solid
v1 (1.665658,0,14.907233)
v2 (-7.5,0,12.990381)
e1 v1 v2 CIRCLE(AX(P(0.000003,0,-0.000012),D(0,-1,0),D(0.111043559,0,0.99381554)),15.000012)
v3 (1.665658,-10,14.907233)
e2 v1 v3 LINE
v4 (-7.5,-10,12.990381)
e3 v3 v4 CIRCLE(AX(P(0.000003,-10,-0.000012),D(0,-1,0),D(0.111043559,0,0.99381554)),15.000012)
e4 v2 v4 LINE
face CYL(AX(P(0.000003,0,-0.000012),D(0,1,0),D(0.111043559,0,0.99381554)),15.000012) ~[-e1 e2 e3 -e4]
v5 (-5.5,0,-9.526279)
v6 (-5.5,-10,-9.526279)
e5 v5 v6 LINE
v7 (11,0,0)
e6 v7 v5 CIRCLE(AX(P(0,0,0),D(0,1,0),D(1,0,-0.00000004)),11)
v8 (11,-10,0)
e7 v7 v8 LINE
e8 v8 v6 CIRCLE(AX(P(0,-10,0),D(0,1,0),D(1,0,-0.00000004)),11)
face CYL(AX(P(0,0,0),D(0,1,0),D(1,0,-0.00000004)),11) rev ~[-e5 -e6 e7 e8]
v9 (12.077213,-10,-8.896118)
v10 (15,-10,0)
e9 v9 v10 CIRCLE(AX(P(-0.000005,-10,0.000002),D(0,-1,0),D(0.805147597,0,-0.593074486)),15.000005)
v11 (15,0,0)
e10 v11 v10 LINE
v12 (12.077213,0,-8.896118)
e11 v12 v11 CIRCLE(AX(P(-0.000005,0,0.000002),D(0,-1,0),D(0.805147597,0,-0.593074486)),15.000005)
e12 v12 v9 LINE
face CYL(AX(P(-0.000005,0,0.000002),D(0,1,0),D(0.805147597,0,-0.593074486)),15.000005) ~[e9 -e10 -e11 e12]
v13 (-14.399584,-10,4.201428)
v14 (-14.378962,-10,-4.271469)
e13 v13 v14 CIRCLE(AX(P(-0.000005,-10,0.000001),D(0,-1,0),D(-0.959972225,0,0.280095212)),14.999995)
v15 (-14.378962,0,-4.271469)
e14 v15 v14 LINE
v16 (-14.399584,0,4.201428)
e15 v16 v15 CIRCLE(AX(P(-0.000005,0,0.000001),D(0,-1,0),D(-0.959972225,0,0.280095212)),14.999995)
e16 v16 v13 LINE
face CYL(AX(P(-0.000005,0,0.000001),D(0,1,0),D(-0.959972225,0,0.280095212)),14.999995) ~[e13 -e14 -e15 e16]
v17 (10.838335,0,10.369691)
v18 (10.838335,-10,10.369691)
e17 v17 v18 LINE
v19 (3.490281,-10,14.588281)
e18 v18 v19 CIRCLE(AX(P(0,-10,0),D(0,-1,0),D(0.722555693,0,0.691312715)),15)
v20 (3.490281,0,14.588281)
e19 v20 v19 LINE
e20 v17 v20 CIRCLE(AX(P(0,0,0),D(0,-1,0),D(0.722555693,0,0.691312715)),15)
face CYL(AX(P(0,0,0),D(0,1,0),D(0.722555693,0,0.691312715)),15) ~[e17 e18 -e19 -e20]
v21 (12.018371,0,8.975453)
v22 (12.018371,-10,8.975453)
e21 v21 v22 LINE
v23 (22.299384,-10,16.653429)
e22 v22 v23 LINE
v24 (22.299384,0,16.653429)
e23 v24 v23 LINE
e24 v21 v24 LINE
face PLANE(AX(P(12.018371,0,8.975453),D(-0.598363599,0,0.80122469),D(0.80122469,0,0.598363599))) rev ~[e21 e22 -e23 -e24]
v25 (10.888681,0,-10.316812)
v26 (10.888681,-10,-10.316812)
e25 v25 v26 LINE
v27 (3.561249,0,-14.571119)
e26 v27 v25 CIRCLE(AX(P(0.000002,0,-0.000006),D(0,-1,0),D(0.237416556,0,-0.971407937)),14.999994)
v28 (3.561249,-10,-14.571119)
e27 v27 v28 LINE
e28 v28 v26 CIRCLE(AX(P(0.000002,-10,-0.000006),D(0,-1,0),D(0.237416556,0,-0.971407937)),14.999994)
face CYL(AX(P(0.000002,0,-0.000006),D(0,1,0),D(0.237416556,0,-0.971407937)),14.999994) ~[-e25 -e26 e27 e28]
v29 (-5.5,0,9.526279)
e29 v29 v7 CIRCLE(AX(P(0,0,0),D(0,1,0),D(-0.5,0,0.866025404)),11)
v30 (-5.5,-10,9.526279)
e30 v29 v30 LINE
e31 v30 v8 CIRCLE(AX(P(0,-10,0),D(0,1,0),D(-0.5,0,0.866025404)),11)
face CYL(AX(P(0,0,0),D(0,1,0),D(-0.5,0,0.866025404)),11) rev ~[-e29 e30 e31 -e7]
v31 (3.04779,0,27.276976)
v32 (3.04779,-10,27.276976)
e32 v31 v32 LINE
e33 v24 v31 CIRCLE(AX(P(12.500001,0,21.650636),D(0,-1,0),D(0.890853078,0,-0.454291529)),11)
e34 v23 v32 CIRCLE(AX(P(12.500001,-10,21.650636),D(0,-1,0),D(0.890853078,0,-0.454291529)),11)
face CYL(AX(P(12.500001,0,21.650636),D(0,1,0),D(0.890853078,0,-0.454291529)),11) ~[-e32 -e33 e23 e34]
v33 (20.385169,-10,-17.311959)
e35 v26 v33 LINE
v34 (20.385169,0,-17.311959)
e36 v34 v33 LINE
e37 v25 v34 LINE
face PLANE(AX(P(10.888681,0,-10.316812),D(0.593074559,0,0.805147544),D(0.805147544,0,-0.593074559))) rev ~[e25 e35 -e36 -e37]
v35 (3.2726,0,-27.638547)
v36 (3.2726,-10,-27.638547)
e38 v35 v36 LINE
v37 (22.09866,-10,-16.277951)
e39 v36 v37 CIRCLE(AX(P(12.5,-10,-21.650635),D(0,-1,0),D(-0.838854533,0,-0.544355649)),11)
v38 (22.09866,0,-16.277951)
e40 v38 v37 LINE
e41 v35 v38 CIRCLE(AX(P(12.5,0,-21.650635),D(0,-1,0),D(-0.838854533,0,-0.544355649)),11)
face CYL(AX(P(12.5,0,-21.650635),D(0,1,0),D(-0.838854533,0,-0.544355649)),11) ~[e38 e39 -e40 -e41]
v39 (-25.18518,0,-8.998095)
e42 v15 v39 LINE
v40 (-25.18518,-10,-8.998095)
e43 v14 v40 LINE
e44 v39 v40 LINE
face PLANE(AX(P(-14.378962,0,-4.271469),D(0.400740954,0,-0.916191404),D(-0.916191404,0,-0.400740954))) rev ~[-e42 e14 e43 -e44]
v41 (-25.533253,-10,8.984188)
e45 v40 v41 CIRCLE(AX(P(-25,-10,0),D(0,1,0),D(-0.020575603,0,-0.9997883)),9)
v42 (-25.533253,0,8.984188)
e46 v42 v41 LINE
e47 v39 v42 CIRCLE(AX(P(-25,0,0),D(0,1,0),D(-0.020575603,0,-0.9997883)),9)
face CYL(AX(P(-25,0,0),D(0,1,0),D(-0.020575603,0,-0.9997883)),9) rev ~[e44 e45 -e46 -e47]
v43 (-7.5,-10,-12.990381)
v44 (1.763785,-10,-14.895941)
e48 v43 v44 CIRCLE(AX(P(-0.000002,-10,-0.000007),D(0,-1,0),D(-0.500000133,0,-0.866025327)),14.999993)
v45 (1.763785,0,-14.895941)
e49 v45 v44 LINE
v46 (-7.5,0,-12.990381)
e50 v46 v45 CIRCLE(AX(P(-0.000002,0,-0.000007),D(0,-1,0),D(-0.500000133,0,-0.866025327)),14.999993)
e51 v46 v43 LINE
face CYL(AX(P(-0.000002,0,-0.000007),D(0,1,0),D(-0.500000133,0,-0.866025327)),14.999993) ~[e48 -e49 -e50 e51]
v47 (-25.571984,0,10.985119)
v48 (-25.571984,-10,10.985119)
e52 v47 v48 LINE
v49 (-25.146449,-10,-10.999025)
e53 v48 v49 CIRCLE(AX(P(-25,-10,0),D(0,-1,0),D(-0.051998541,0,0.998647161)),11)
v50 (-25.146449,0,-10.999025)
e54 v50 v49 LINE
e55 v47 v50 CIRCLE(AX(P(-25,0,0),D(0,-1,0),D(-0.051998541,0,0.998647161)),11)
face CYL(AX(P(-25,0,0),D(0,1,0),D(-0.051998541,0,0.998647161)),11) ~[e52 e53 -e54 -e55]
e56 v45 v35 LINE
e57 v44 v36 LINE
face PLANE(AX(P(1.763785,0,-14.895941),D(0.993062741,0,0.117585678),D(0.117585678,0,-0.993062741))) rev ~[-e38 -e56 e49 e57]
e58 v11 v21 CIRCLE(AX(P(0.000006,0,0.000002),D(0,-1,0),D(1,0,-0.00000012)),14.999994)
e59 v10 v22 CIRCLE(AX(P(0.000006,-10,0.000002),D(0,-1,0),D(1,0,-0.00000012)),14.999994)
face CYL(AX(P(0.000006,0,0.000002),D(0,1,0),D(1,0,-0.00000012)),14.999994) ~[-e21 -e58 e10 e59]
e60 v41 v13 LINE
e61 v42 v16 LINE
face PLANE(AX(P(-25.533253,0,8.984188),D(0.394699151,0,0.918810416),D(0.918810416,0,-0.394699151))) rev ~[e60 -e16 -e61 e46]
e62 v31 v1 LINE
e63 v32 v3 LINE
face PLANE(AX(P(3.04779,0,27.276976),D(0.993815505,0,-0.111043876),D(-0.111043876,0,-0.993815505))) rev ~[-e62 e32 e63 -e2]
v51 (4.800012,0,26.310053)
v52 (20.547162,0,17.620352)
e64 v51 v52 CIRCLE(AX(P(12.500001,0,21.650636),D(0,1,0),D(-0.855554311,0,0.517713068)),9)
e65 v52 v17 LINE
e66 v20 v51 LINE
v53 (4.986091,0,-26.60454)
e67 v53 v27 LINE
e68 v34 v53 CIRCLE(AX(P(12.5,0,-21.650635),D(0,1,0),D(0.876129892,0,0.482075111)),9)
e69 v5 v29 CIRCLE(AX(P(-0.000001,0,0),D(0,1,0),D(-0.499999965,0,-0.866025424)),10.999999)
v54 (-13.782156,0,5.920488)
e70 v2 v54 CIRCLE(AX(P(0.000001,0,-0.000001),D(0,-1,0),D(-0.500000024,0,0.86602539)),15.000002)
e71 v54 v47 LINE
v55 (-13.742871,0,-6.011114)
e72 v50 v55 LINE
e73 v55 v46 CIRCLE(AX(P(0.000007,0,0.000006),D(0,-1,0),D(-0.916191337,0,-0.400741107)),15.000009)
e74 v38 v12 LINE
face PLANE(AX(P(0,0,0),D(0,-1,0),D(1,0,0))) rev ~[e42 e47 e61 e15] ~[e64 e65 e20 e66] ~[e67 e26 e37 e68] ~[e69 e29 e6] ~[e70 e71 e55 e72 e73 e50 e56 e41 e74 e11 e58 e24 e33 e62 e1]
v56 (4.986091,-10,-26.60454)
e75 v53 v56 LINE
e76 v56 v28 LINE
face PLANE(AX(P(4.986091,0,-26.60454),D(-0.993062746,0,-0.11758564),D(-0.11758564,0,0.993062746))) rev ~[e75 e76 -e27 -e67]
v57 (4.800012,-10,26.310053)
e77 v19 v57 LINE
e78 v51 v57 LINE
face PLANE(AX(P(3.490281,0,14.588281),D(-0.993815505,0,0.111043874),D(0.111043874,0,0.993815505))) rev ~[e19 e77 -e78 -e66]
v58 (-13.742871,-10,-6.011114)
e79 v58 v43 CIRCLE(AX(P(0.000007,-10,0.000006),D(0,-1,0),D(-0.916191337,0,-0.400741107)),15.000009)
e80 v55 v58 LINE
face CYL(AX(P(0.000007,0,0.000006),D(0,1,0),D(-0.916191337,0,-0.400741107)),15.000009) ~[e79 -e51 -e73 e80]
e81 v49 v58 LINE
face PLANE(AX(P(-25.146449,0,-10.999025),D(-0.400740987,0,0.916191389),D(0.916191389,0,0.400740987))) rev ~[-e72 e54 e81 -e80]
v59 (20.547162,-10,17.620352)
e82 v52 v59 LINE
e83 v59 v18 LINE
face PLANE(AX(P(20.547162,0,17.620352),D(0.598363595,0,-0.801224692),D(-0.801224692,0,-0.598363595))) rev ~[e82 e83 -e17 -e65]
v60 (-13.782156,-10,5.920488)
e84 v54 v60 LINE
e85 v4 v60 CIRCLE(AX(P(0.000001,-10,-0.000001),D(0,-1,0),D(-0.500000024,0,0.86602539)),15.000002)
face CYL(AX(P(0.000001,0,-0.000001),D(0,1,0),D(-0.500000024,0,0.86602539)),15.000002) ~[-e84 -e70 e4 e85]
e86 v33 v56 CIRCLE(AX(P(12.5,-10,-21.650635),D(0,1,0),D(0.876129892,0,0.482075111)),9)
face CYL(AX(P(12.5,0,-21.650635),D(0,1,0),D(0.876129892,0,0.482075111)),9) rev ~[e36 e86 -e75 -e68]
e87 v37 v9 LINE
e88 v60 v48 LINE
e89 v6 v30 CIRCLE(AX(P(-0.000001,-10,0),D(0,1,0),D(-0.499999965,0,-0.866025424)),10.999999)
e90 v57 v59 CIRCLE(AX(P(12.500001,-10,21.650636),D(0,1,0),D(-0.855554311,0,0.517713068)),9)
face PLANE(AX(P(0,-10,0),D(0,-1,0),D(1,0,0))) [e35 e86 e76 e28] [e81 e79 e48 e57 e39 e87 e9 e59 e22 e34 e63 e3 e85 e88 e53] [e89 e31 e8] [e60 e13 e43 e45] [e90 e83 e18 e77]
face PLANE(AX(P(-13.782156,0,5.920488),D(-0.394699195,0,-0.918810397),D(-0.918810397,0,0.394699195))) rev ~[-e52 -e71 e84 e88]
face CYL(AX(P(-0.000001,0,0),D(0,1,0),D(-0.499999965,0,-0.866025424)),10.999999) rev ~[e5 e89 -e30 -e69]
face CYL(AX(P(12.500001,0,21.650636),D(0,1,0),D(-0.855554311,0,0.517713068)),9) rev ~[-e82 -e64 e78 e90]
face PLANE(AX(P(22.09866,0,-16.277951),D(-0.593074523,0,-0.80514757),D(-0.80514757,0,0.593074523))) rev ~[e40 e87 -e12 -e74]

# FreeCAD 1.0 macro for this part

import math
import FreeCAD as App
import Part
import Sketcher

doc = App.newDocument("Part")
body = doc.addObject("PartDesign::Body", "Body")

sketch1 = doc.addObject("Sketcher::SketchObject", "Sketch")
body.addObject(sketch1)
sketch1.AttachmentSupport = (doc.XZ_Plane, [""])
sketch1.MapMode = "FlatFace"
sketch1.addGeometry(Part.LineSegment(App.Vector(-14, 6, 0), App.Vector(-26, 11, 0)), False)
sketch1.addGeometry(Part.ArcOfCircle(Part.Circle(App.Vector(-25, 0, 0), App.Vector(0, 0, 1), 11), math.radians(93), math.radians(269)), False)
sketch1.addGeometry(Part.LineSegment(App.Vector(-25, -11, 0), App.Vector(-14, -6, 0)), False)
sketch1.addGeometry(Part.ArcOfCircle(Part.Circle(App.Vector(0, 0, 0), App.Vector(0, 0, 1), 15), math.radians(-156), math.radians(-120)), False)
sketch1.addGeometry(Part.ArcOfCircle(Part.Circle(App.Vector(0, 0, 0), App.Vector(0, 0, 1), 15), math.radians(-120), math.radians(-83)), False)
sketch1.addGeometry(Part.LineSegment(App.Vector(2, -15, 0), App.Vector(3, -28, 0)), False)
sketch1.addGeometry(Part.ArcOfCircle(Part.Circle(App.Vector(13, -22, 0), App.Vector(0, 0, 1), 11), math.radians(-147), math.radians(29)), False)
sketch1.addGeometry(Part.LineSegment(App.Vector(22, -16, 0), App.Vector(12, -9, 0)), False)
sketch1.addGeometry(Part.ArcOfCircle(Part.Circle(App.Vector(0, 0, 0), App.Vector(0, 0, 1), 15), math.radians(-36), math.radians(0)), False)
sketch1.addGeometry(Part.ArcOfCircle(Part.Circle(App.Vector(0, 0, 0), App.Vector(0, 0, 1), 15), math.radians(0), math.radians(37)), False)
sketch1.addGeometry(Part.LineSegment(App.Vector(12, 9, 0), App.Vector(22, 17, 0)), False)
sketch1.addGeometry(Part.ArcOfCircle(Part.Circle(App.Vector(13, 22, 0), App.Vector(0, 0, 1), 11), math.radians(-27), math.radians(149)), False)
sketch1.addGeometry(Part.LineSegment(App.Vector(3, 27, 0), App.Vector(2, 15, 0)), False)
sketch1.addGeometry(Part.ArcOfCircle(Part.Circle(App.Vector(0, 0, 0), App.Vector(0, 0, 1), 15), math.radians(84), math.radians(120)), False)
sketch1.addGeometry(Part.ArcOfCircle(Part.Circle(App.Vector(0, 0, 0), App.Vector(0, 0, 1), 15), math.radians(120), math.radians(157)), False)
sketch1.addGeometry(Part.ArcOfCircle(Part.Circle(App.Vector(-25, 0, 0), App.Vector(0, 0, 1), 9), math.radians(93), math.radians(269)), False)
sketch1.addGeometry(Part.LineSegment(App.Vector(-26, 9, 0), App.Vector(-14, 4, 0)), False)
sketch1.addGeometry(Part.ArcOfCircle(Part.Circle(App.Vector(0, 0, 0), App.Vector(0, 0, 1), 15), math.radians(164), math.radians(197)), False)
sketch1.addGeometry(Part.LineSegment(App.Vector(-14, -4, 0), App.Vector(-25, -9, 0)), False)
sketch1.addGeometry(Part.ArcOfCircle(Part.Circle(App.Vector(0, 0, 0), App.Vector(0, 0, 1), 15), math.radians(-76), math.radians(-43)), False)
sketch1.addGeometry(Part.LineSegment(App.Vector(11, -10, 0), App.Vector(20, -17, 0)), False)
sketch1.addGeometry(Part.ArcOfCircle(Part.Circle(App.Vector(12, -22, 0), App.Vector(0, 0, 1), 9), math.radians(-147), math.radians(29)), False)
sketch1.addGeometry(Part.LineSegment(App.Vector(5, -27, 0), App.Vector(4, -15, 0)), False)
sketch1.addGeometry(Part.ArcOfCircle(Part.Circle(App.Vector(0, 0, 0), App.Vector(0, 0, 1), 11), math.radians(-120), math.radians(0)), False)
sketch1.addGeometry(Part.ArcOfCircle(Part.Circle(App.Vector(0, 0, 0), App.Vector(0, 0, 1), 11), math.radians(120), math.radians(240)), False)
sketch1.addGeometry(Part.ArcOfCircle(Part.Circle(App.Vector(0, 0, 0), App.Vector(0, 0, 1), 11), math.radians(0), math.radians(120)), False)
sketch1.addGeometry(Part.ArcOfCircle(Part.Circle(App.Vector(0, 0, 0), App.Vector(0, 0, 1), 15), math.radians(44), math.radians(77)), False)
sketch1.addGeometry(Part.LineSegment(App.Vector(3, 15, 0), App.Vector(5, 26, 0)), False)
sketch1.addGeometry(Part.ArcOfCircle(Part.Circle(App.Vector(13, 22, 0), App.Vector(0, 0, 1), 9), math.radians(-27), math.radians(149)), False)
sketch1.addGeometry(Part.LineSegment(App.Vector(21, 18, 0), App.Vector(11, 10, 0)), False)
sketch1.addConstraint(Sketcher.Constraint("Coincident", 0, 2, 1, 1))
sketch1.addConstraint(Sketcher.Constraint("Coincident", 1, 2, 2, 1))
sketch1.addConstraint(Sketcher.Constraint("Coincident", 2, 2, 3, 1))
sketch1.addConstraint(Sketcher.Constraint("Tangent", 3, 2, 4, 1))
sketch1.addConstraint(Sketcher.Constraint("Coincident", 4, 2, 5, 1))
sketch1.addConstraint(Sketcher.Constraint("Coincident", 5, 2, 6, 1))
sketch1.addConstraint(Sketcher.Constraint("Coincident", 6, 2, 7, 1))
sketch1.addConstraint(Sketcher.Constraint("Coincident", 7, 2, 8, 1))
sketch1.addConstraint(Sketcher.Constraint("Tangent", 8, 2, 9, 1))
sketch1.addConstraint(Sketcher.Constraint("Coincident", 9, 2, 10, 1))
sketch1.addConstraint(Sketcher.Constraint("Coincident", 10, 2, 11, 1))
sketch1.addConstraint(Sketcher.Constraint("Coincident", 11, 2, 12, 1))
sketch1.addConstraint(Sketcher.Constraint("Coincident", 12, 2, 13, 1))
sketch1.addConstraint(Sketcher.Constraint("Tangent", 13, 2, 14, 1))
sketch1.addConstraint(Sketcher.Constraint("Coincident", 14, 2, 0, 1))
sketch1.addConstraint(Sketcher.Constraint("Coincident", 15, 1, 16, 1))
sketch1.addConstraint(Sketcher.Constraint("Coincident", 16, 2, 17, 1))
sketch1.addConstraint(Sketcher.Constraint("Coincident", 17, 2, 18, 1))
sketch1.addConstraint(Sketcher.Constraint("Coincident", 18, 2, 15, 2))
sketch1.addConstraint(Sketcher.Constraint("Coincident", 19, 2, 20, 1))
sketch1.addConstraint(Sketcher.Constraint("Coincident", 20, 2, 21, 2))
sketch1.addConstraint(Sketcher.Constraint("Coincident", 21, 1, 22, 1))
sketch1.addConstraint(Sketcher.Constraint("Coincident", 22, 2, 19, 1))
sketch1.addConstraint(Sketcher.Constraint("Tangent", 23, 1, 24, 2))
sketch1.addConstraint(Sketcher.Constraint("Tangent", 24, 1, 25, 2))
sketch1.addConstraint(Sketcher.Constraint("Tangent", 25, 1, 23, 2))
sketch1.addConstraint(Sketcher.Constraint("Coincident", 26, 2, 27, 1))
sketch1.addConstraint(Sketcher.Constraint("Coincident", 27, 2, 28, 2))
sketch1.addConstraint(Sketcher.Constraint("Coincident", 28, 1, 29, 1))
sketch1.addConstraint(Sketcher.Constraint("Coincident", 29, 2, 26, 1))
sketch1.addConstraint(Sketcher.Constraint("Coincident", 3, 3, -1, 1))
sketch1.addConstraint(Sketcher.Constraint("Coincident", 8, 3, -1, 1))
sketch1.addConstraint(Sketcher.Constraint("Coincident", 14, 3, -1, 1))
sketch1.addConstraint(Sketcher.Constraint("Coincident", 17, 3, -1, 1))
sketch1.addConstraint(Sketcher.Constraint("Coincident", 19, 3, -1, 1))
sketch1.addConstraint(Sketcher.Constraint("Coincident", 23, 3, -1, 1))
sketch1.addConstraint(Sketcher.Constraint("Coincident", 26, 3, -1, 1))
sketch1.addConstraint(Sketcher.Constraint("Coincident", 13, 3, 4, 3))
sketch1.addConstraint(Sketcher.Constraint("Coincident", 15, 3, 1, 3))
sketch1.addConstraint(Sketcher.Constraint("Coincident", 21, 3, 6, 3))
sketch1.addConstraint(Sketcher.Constraint("Coincident", 28, 3, 11, 3))
sketch1.addConstraint(Sketcher.Constraint("Equal", 1, 6))
sketch1.addConstraint(Sketcher.Constraint("Equal", 4, 9))
sketch1.addConstraint(Sketcher.Constraint("Equal", 6, 11))
sketch1.addConstraint(Sketcher.Constraint("Equal", 9, 17))
sketch1.addConstraint(Sketcher.Constraint("Equal", 17, 19))
sketch1.addConstraint(Sketcher.Constraint("Equal", 15, 21))
sketch1.addConstraint(Sketcher.Constraint("Equal", 11, 23))
sketch1.addConstraint(Sketcher.Constraint("Equal", 14, 26))
sketch1.addConstraint(Sketcher.Constraint("Equal", 21, 28))
sketch1.addConstraint(Sketcher.Constraint("Symmetric", 6, 3, 11, 3, -1))
sketch1.addConstraint(Sketcher.Constraint("Symmetric", 3, 2, 13, 2, -1))
sketch1.addConstraint(Sketcher.Constraint("PointOnObject", 1, 3, -1))
sketch1.addConstraint(Sketcher.Constraint("PointOnObject", 8, 2, -1))
sketch1.addConstraint(Sketcher.Constraint("PointOnObject", 25, 1, -1))
sketch1.addConstraint(Sketcher.Constraint("Parallel", 0, 16))
sketch1.addConstraint(Sketcher.Constraint("Parallel", 2, 18))
sketch1.addConstraint(Sketcher.Constraint("Parallel", 7, 20))
sketch1.addConstraint(Sketcher.Constraint("Parallel", 5, 22))
sketch1.addConstraint(Sketcher.Constraint("Parallel", 12, 27))
sketch1.addConstraint(Sketcher.Constraint("Parallel", 10, 29))
sketch1.addConstraint(Sketcher.Constraint("Vertical", 23, 1, 24, 1))
sketch1.addConstraint(Sketcher.Constraint("Equal", 0, 5))
sketch1.addConstraint(Sketcher.Constraint("Equal", 2, 7))
sketch1.addConstraint(Sketcher.Constraint("Equal", 5, 10))
sketch1.addConstraint(Sketcher.Constraint("Equal", 7, 12))
sketch1.addConstraint(Sketcher.Constraint("Equal", 18, 20))
sketch1.addConstraint(Sketcher.Constraint("Equal", 16, 22))
sketch1.addConstraint(Sketcher.Constraint("Equal", 20, 27))
sketch1.addConstraint(Sketcher.Constraint("Equal", 22, 29))
sketch1.addConstraint(Sketcher.Constraint("Radius", 1, 11.0))
sketch1.addConstraint(Sketcher.Constraint("Radius", 14, 15.000002))
sketch1.addConstraint(Sketcher.Constraint("Radius", 15, 9.0))
sketch1.addConstraint(Sketcher.Constraint("DistanceX", 1, 3, -1, 1, 25.0))
sketch1.addConstraint(Sketcher.Constraint("DistanceX", -1, 1, 8, 2, 15.0))
sketch1.addConstraint(Sketcher.Constraint("DistanceX", 3, 2, 23, 1, 2.0))
sketch1.addConstraint(Sketcher.Constraint("DistanceX", -1, 1, 6, 3, 12.5))
sketch1.addConstraint(Sketcher.Constraint("DistanceX", 3, 2, -1, 1, 7.5))
sketch1.addConstraint(Sketcher.Constraint("DistanceY", 22, 2, 7, 2, 5.675001))
sketch1.addConstraint(Sketcher.Constraint("DistanceY", 24, 1, 26, 2, 5.062002))
sketch1.addConstraint(Sketcher.Constraint("DistanceX", -1, 1, 5, 2, 3.2726))
sketch1.addConstraint(Sketcher.Constraint("DistanceY", 2, 2, 14, 2, 11.931602))
sketch1.addConstraint(Sketcher.Constraint("DistanceY", 14, 2, 15, 1, 3.0637))
sketch1.addConstraint(Sketcher.Constraint("DistanceY", 21, 1, 4, 2, 11.708599))
sketch1.addConstraint(Sketcher.Constraint("DistanceY", 9, 2, 28, 1, 8.644899))
sketch1.addConstraint(Sketcher.Constraint("Distance", 2, 12.44672))
sketch1.addConstraint(Sketcher.Constraint("DistanceY", -1, 1, 0, 2, 10.985119))
sketch1.addConstraint(Sketcher.Constraint("DistanceY", 4, 2, -1, 1, 14.895941))
sketch1.addConstraint(Sketcher.Constraint("DistanceX", -1, 1, 12, 2, 1.665658))
pad1 = doc.addObject("PartDesign::Pad", "Pad")
body.addObject(pad1)
pad1.Profile = sketch1
pad1.Length = 10

doc.recompute()
